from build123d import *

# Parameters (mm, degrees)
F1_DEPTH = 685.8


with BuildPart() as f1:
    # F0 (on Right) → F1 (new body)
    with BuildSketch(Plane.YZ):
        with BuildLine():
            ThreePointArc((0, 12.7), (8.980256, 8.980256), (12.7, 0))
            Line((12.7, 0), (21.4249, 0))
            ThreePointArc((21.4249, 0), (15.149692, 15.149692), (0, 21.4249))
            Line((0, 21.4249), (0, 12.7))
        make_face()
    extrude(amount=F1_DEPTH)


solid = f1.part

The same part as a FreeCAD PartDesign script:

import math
import FreeCAD as App
import Part
import Sketcher
Q = App.Units.Quantity

doc = App.newDocument("Part")
body = doc.addObject("PartDesign::Body", "Body")

sketch1 = body.newObject("Sketcher::SketchObject", "Sketch")
sketch1.AttachmentSupport = (doc.getObject("YZ_Plane"), [""])
sketch1.MapMode = "FlatFace"
sketch1.addGeometry([
    Part.ArcOfCircle(Part.Circle(App.Vector(0, 0, 0), App.Vector(0, 0, 1), 12.7), math.radians(0.000002), math.radians(89.999998)),
    Part.LineSegment(App.Vector(12.7, 0, 0), App.Vector(21.4249, 0, 0)),
    Part.ArcOfCircle(Part.Circle(App.Vector(0, 0, 0), App.Vector(0, 0, 1), 21.4249), math.radians(0.000001), math.radians(89.999999)),
    Part.LineSegment(App.Vector(0, 21.4249, 0), App.Vector(0, 12.7, 0)),
], False)
sketch1.addConstraint([
    Sketcher.Constraint("Coincident", 0, 1, 1, 1),
    Sketcher.Constraint("Coincident", 1, 2, 2, 1),
    Sketcher.Constraint("Coincident", 2, 2, 3, 1),
    Sketcher.Constraint("Coincident", 3, 2, 0, 2),
    Sketcher.Constraint("Horizontal", 1),
    Sketcher.Constraint("Vertical", 3),
    Sketcher.Constraint("Coincident", 0, 3, -1, 1),
    Sketcher.Constraint("Coincident", 2, 3, -1, 1),
    Sketcher.Constraint("PointOnObject", 0, 1, -1),
    Sketcher.Constraint("PointOnObject", 2, 2, -2),
    Sketcher.Constraint("Radius", 0, Q("0.5 in")),
    Sketcher.Constraint("Radius", 2, Q("0.8435 in")),
])
pad1 = body.newObject("PartDesign::Pad", "Pad")
pad1.Profile = sketch1
pad1.Length = Q("27 in")

doc.recompute()
